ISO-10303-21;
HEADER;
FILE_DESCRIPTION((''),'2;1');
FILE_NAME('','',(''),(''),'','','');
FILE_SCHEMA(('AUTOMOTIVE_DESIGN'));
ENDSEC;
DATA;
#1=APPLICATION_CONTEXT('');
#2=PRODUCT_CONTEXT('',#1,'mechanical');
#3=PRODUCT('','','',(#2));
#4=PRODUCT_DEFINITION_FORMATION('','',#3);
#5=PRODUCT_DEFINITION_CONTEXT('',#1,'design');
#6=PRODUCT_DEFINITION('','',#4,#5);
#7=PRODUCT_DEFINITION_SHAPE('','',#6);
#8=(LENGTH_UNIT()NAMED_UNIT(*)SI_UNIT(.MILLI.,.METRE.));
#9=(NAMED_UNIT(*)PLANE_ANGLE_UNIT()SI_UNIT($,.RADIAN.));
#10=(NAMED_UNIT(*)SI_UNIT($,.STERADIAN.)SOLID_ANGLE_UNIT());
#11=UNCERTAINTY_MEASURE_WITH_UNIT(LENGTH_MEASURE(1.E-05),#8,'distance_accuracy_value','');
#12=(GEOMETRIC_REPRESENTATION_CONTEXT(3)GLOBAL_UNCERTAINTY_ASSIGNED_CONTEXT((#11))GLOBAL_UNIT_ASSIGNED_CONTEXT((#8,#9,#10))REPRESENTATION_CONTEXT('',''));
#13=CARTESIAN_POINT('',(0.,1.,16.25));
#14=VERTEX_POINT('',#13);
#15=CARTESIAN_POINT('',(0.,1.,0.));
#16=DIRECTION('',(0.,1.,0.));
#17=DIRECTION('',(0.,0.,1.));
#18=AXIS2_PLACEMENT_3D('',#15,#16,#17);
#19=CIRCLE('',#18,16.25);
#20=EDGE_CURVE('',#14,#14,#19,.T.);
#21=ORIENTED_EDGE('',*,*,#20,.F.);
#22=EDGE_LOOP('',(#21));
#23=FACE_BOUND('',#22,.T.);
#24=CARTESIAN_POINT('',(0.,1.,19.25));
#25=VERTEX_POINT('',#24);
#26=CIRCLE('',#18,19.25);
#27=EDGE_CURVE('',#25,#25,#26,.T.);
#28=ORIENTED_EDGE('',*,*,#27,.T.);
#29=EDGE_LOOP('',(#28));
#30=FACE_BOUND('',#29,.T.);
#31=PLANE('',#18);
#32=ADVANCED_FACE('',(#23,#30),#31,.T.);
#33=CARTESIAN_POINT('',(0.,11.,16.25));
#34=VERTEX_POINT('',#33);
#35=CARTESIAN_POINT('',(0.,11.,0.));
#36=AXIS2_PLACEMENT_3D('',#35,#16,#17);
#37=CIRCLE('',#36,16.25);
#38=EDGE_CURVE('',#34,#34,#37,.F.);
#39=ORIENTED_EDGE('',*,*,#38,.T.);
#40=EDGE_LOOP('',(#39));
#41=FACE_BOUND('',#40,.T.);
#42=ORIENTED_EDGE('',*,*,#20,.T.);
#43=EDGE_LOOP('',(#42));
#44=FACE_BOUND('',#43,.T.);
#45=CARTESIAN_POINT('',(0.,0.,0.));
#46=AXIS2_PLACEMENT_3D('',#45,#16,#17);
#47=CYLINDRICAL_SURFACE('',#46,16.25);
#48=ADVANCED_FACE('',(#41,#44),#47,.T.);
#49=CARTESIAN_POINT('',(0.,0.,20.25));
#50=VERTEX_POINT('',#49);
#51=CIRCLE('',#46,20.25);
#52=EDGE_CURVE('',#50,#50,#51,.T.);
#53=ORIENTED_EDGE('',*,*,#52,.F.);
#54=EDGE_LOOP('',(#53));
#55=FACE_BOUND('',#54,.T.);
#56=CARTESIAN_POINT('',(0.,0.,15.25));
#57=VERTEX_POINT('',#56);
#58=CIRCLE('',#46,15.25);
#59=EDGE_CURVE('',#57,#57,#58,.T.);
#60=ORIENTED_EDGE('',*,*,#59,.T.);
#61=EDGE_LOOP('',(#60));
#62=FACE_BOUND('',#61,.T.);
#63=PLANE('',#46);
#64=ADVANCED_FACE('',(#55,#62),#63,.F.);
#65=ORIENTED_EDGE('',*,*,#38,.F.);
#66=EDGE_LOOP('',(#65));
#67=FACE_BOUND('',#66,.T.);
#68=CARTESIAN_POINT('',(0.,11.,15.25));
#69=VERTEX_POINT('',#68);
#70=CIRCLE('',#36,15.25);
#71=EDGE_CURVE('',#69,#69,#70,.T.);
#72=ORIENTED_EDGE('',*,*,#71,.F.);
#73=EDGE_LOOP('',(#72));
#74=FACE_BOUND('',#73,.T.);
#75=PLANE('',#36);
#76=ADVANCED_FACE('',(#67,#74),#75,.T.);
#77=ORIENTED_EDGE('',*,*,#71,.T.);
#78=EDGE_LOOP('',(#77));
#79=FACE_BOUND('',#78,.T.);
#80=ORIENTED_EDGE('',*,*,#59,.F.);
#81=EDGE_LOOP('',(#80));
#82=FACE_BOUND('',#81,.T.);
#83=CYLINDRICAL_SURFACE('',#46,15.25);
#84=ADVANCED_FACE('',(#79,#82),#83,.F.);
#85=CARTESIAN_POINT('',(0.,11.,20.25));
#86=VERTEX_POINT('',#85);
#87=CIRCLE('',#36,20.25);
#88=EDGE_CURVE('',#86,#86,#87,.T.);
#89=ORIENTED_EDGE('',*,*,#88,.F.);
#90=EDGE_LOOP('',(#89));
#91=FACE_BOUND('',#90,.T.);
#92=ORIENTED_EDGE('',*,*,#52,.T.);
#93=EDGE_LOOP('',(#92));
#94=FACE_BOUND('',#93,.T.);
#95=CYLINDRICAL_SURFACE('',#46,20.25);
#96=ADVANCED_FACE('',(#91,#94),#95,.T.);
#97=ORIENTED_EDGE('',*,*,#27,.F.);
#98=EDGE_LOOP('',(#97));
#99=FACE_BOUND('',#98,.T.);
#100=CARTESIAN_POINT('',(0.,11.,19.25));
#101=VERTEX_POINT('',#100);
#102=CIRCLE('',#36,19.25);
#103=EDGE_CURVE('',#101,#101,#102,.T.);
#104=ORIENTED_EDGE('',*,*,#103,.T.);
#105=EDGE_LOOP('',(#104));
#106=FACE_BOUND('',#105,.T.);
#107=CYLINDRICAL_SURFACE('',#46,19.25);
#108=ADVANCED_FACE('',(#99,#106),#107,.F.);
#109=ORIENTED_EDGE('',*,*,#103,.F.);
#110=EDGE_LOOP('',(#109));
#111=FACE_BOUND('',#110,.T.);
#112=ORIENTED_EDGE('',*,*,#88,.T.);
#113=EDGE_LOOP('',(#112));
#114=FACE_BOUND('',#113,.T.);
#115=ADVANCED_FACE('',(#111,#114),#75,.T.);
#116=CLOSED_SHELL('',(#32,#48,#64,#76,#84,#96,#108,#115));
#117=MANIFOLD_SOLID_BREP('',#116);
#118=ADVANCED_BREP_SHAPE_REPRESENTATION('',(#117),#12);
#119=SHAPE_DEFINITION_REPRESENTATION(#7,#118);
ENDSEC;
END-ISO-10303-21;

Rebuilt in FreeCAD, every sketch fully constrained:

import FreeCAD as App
import Part
import Sketcher

V = App.Vector
Q = App.Units.Quantity

doc = App.newDocument("Part")
body = doc.addObject("PartDesign::Body", "Body")

sketch1 = doc.addObject("Sketcher::SketchObject", "Sketch")
body.addObject(sketch1)
sketch1.AttachmentSupport = (doc.XZ_Plane, [""])
sketch1.MapMode = "FlatFace"
sketch1.addGeometry(Part.Circle(V(0, 0, 0), V(0, 0, 1), 19), False)
sketch1.addGeometry(Part.Circle(V(0, 0, 0), V(0, 0, 1), 16), False)
sketch1.addConstraint(Sketcher.Constraint("Coincident", 0, 3, -1, 1))
sketch1.addConstraint(Sketcher.Constraint("Coincident", 1, 3, -1, 1))
sketch1.addConstraint(Sketcher.Constraint("Diameter", 0, Q("38.5 mm")))
sketch1.addConstraint(Sketcher.Constraint("Diameter", 1, Q("32.5 mm")))
pad1 = doc.addObject("PartDesign::Pad", "Pad")
body.addObject(pad1)
pad1.Profile = sketch1
pad1.Length = 1
pad1.Reversed = True

sketch2 = doc.addObject("Sketcher::SketchObject", "Sketch001")
body.addObject(sketch2)
sketch2.AttachmentSupport = (doc.XZ_Plane, [""])
sketch2.MapMode = "FlatFace"
sketch2.AttachmentOffset = App.Placement(V(0, 0, -1), App.Rotation())
sketch2.addGeometry(Part.Circle(V(0, 0, 0), V(0, 0, 1), 20), False)
sketch2.addGeometry(Part.Circle(V(0, 0, 0), V(0, 0, 1), 19), False)
sketch2.addGeometry(Part.Circle(V(0, 0, 0), V(0, 0, 1), 16), False)
sketch2.addGeometry(Part.Circle(V(0, 0, 0), V(0, 0, 1), 15), False)
sketch2.addConstraint(Sketcher.Constraint("Coincident", 0, 3, -1, 1))
sketch2.addConstraint(Sketcher.Constraint("Coincident", 1, 3, -1, 1))
sketch2.addConstraint(Sketcher.Constraint("Coincident", 2, 3, -1, 1))
sketch2.addConstraint(Sketcher.Constraint("Coincident", 3, 3, -1, 1))
sketch2.addConstraint(Sketcher.Constraint("Diameter", 0, Q("40.5 mm")))
sketch2.addConstraint(Sketcher.Constraint("Diameter", 1, Q("38.5 mm")))
sketch2.addConstraint(Sketcher.Constraint("Diameter", 2, Q("32.5 mm")))
sketch2.addConstraint(Sketcher.Constraint("Diameter", 3, Q("30.5 mm")))
pad2 = doc.addObject("PartDesign::Pad", "Pad001")
body.addObject(pad2)
pad2.Profile = sketch2
pad2.Type = "TwoLengths"
pad2.Length = 10
pad2.Length2 = 1
pad2.Reversed = True

doc.recompute()
